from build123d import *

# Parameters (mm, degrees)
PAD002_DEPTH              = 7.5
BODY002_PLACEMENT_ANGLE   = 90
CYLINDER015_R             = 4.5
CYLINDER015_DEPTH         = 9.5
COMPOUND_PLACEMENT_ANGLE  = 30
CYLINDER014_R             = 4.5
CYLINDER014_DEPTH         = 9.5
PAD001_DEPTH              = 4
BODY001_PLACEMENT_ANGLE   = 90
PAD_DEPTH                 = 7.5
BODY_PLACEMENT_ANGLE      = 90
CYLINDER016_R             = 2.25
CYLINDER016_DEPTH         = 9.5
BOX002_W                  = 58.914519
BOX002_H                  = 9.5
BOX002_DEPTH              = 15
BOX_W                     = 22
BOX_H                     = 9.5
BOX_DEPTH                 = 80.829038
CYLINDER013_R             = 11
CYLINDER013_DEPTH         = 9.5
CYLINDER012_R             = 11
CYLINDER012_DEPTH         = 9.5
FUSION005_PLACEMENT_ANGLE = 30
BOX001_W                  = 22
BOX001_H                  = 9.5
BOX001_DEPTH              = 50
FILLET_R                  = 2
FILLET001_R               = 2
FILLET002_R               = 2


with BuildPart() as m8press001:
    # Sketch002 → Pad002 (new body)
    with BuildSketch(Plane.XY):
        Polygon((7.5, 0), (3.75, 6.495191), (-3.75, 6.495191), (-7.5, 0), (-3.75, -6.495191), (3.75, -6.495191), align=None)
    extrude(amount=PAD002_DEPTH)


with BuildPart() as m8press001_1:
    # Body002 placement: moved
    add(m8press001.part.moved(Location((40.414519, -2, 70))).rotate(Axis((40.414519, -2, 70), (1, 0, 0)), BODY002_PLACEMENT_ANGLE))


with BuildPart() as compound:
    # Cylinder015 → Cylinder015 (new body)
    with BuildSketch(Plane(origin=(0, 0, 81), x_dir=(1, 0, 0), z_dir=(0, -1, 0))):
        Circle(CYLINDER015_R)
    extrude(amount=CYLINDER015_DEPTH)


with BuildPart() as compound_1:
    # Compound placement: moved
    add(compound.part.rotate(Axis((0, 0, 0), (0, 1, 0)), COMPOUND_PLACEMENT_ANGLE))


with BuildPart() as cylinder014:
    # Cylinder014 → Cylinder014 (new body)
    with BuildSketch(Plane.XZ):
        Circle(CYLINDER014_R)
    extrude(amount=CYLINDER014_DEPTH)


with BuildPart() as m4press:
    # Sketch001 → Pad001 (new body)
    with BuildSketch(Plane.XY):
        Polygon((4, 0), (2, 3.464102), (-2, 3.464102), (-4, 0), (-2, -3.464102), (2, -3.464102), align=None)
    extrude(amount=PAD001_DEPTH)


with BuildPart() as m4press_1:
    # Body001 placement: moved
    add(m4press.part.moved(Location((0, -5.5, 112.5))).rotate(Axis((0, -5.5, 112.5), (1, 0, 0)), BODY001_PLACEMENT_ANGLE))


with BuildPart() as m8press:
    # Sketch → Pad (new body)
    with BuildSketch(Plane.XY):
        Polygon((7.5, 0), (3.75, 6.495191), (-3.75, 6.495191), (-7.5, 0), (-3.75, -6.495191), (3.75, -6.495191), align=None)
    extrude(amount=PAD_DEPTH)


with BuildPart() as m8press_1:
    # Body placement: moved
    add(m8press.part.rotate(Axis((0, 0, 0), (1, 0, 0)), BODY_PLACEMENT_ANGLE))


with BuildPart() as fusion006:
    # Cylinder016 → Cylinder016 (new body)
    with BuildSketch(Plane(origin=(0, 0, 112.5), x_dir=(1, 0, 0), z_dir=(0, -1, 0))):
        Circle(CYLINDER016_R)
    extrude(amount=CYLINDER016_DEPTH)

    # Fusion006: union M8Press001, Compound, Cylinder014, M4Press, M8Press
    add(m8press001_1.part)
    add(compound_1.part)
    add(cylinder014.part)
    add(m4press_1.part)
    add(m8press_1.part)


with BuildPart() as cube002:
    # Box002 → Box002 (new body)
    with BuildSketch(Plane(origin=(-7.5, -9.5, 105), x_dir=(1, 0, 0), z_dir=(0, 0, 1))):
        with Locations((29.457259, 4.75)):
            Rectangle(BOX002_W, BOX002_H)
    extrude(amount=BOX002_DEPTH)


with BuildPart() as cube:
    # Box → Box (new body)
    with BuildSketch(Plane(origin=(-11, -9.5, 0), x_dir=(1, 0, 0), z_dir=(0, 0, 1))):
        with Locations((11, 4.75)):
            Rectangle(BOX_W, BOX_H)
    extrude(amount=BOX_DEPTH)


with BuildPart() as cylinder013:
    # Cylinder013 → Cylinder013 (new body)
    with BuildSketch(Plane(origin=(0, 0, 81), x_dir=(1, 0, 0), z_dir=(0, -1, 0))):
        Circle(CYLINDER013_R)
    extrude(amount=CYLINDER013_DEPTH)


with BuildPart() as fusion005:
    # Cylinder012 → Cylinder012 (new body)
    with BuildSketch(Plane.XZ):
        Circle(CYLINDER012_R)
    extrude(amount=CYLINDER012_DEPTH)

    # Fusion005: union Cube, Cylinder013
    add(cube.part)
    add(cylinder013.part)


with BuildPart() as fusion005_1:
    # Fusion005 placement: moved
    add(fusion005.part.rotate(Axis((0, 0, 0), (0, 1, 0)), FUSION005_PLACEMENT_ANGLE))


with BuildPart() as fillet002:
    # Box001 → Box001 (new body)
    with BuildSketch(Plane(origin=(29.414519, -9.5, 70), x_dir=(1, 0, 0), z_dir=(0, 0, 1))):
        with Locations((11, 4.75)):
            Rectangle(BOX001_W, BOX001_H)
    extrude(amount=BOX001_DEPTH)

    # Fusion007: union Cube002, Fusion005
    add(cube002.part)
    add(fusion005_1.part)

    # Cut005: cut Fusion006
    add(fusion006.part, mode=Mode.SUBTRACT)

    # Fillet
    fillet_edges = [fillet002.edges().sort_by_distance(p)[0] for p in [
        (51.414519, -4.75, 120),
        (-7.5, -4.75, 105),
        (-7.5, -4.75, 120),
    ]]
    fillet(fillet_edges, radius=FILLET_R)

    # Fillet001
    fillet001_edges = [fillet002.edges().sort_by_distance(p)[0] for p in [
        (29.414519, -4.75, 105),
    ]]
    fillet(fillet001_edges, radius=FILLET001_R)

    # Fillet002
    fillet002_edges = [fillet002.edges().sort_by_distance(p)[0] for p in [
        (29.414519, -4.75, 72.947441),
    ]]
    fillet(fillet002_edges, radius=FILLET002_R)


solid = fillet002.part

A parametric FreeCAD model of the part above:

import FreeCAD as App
import Part
import Sketcher

V = App.Vector
Q = App.Units.Quantity


def edges_at(feature, points):
    """Names of the edges that pass closest to the given points."""
    edges = feature.Shape.Edges
    near = lambda p: min(range(len(edges)), key=lambda i: edges[i].distToShape(Part.Vertex(*p))[0])
    return sorted({f"Edge{near(p) + 1}" for p in points})


def add_polygon(sketch, points):
    """Adds a closed chain of lines whose ends are joined by coincident constraints."""
    first, n = sketch.GeometryCount, len(points)
    for a, b in zip(points, points[1:] + points[:1]):
        sketch.addGeometry(Part.LineSegment(App.Vector(*a, 0), App.Vector(*b, 0)), False)
    for i in range(n):
        sketch.addConstraint(Sketcher.Constraint("Coincident", first + i, 2, first + (i + 1) % n, 1))

doc = App.newDocument("Part")
params = doc.addObject("Spreadsheet::Sheet", "Params")
for row, (alias, value) in enumerate([
    ("sketch1_width", "7.5 mm"),
    ("pad1_length", "7.5 mm"),
    ("sketch2_diameter", "9 mm"),
    ("pad2_length", "9.5 mm"),
    ("sketch3_diameter", "9 mm"),
    ("pad3_length", "9.5 mm"),
    ("sketch4_width", "4 mm"),
    ("sketch4_length", "4 mm"),
    ("pad4_length", "4 mm"),
    ("sketch5_width", "7.5 mm"),
    ("pad5_length", "7.5 mm"),
    ("sketch6_diameter", "4.5 mm"),
    ("pad6_length", "9.5 mm"),
    ("sketch7_height", "9.5 mm"),
    ("pad7_length", "15 mm"),
    ("sketch8_width", "22 mm"),
    ("sketch8_height", "9.5 mm"),
    ("pad8_length", "80.829038 mm"),
    ("sketch9_diameter", "22 mm"),
    ("pad9_length", "9.5 mm"),
    ("sketch10_diameter", "22 mm"),
    ("pad10_length", "9.5 mm"),
    ("sketch11_width", "22 mm"),
    ("sketch11_height", "9.5 mm"),
    ("pad11_length", "50 mm"),
    ("fillet_radius", "2 mm"),
    ("fillet2_radius", "2 mm"),
    ("fillet3_radius", "2 mm"),
], start=1):
    params.set(f"A{row}", alias)
    params.set(f"B{row}", "=" + value)
    params.setAlias(f"B{row}", alias)

body = doc.addObject("PartDesign::Body", "Body")

sketch1 = body.newObject("Sketcher::SketchObject", "Sketch")
sketch1.AttachmentSupport = (doc.getObject("XY_Plane"), [""])
sketch1.MapMode = "FlatFace"
add_polygon(sketch1, [(8, 0), (4, 6), (-4, 6), (-8, 0), (-4, -6), (4, -6)])
sketch1.addConstraint([
    Sketcher.Constraint("Horizontal", 1),
    Sketcher.Constraint("Horizontal", 4),
    Sketcher.Constraint("Symmetric", 0, 2, 3, 2, -1, 1),
    Sketcher.Constraint("Symmetric", 2, 2, 5, 2, -1, 1),
    Sketcher.Constraint("PointOnObject", 2, 2, -1),
    Sketcher.Constraint("Parallel", 2, 5),
    Sketcher.Constraint("Vertical", 1, 2, 3, 2),
    Sketcher.Constraint("Angle", 0, Q("119.999998 deg")),
    Sketcher.Constraint("DistanceX", 1, 2, 1, 1, Q("7.5 mm")),
    Sketcher.Constraint("DistanceX", 2, 2, 5, 2, Q("15 mm")),
])
sketch1.setExpression("Constraints[14]", "Params.sketch1_width")
pad1 = body.newObject("PartDesign::Pad", "Pad")
pad1.Profile = sketch1
pad1.setExpression("Length", "Params.pad1_length")
body2 = doc.addObject("PartDesign::Body", "Body001")
doc.recompute()

body.Placement = App.Placement(V(40.414519, -2, 70), App.Rotation(V(1, 0, 0), 90))
boolean = body2.newObject("PartDesign::Boolean", "Boolean")
boolean.Type = "Fuse"
boolean.addObjects([body])
body3 = doc.addObject("PartDesign::Body", "Body002")

sketch2 = body3.newObject("Sketcher::SketchObject", "Sketch001")
sketch2.AttachmentSupport = (doc.getObject("XZ_Plane002"), [""])
sketch2.MapMode = "FlatFace"
sketch2.addGeometry(Part.Circle(V(0, 81, 0), V(0, 0, 1), 4.5), False)
sketch2.addConstraint([
    Sketcher.Constraint("PointOnObject", 0, 3, -2),
    Sketcher.Constraint("Diameter", 0, Q("9 mm")),
    Sketcher.Constraint("DistanceY", -1, 1, 0, 3, Q("81 mm")),
])
sketch2.setExpression("Constraints[1]", "Params.sketch2_diameter")
pad2 = body3.newObject("PartDesign::Pad", "Pad001")
pad2.Profile = sketch2
pad2.setExpression("Length", "Params.pad2_length")
body4 = doc.addObject("PartDesign::Body", "Body003")
doc.recompute()

body3.Placement = App.Placement(V(0, 0, 0), App.Rotation(V(0, 1, 0), 30))
boolean2 = body4.newObject("PartDesign::Boolean", "Boolean001")
boolean2.Type = "Fuse"
boolean2.addObjects([body3])
body5 = doc.addObject("PartDesign::Body", "Body004")

sketch3 = body5.newObject("Sketcher::SketchObject", "Sketch002")
sketch3.AttachmentSupport = (doc.getObject("XZ_Plane004"), [""])
sketch3.MapMode = "FlatFace"
sketch3.addGeometry(Part.Circle(V(0, 0, 0), V(0, 0, 1), 4.5), False)
sketch3.addConstraint([
    Sketcher.Constraint("Coincident", 0, 3, -1, 1),
    Sketcher.Constraint("Diameter", 0, Q("9 mm")),
])
sketch3.setExpression("Constraints[1]", "Params.sketch3_diameter")
pad3 = body5.newObject("PartDesign::Pad", "Pad002")
pad3.Profile = sketch3
pad3.setExpression("Length", "Params.pad3_length")
body6 = doc.addObject("PartDesign::Body", "Body005")

sketch4 = body6.newObject("Sketcher::SketchObject", "Sketch003")
sketch4.AttachmentSupport = (doc.getObject("XY_Plane005"), [""])
sketch4.MapMode = "FlatFace"
add_polygon(sketch4, [(4, 0), (2, 3.5), (-2, 3.5), (-4, 0), (-2, -3.5), (2, -3.5)])
sketch4.addConstraint([
    Sketcher.Constraint("Horizontal", 1),
    Sketcher.Constraint("Horizontal", 4),
    Sketcher.Constraint("Symmetric", 0, 2, 3, 2, -1, 1),
    Sketcher.Constraint("Symmetric", 2, 2, 5, 2, -1, 1),
    Sketcher.Constraint("PointOnObject", 2, 2, -1),
    Sketcher.Constraint("Parallel", 2, 5),
    Sketcher.Constraint("Vertical", 1, 2, 3, 2),
    Sketcher.Constraint("DistanceX", 1, 2, 1, 1, Q("4 mm")),
    Sketcher.Constraint("Angle", 0, Q("119.999997 deg")),
    Sketcher.Constraint("Distance", 0, Q("4 mm")),
])
sketch4.setExpression("Constraints[13]", "Params.sketch4_width")
sketch4.setExpression("Constraints[15]", "Params.sketch4_length")
pad4 = body6.newObject("PartDesign::Pad", "Pad003")
pad4.Profile = sketch4
pad4.setExpression("Length", "Params.pad4_length")
body7 = doc.addObject("PartDesign::Body", "Body006")
doc.recompute()

body6.Placement = App.Placement(V(0, -5.5, 112.5), App.Rotation(V(1, 0, 0), 90))
boolean3 = body7.newObject("PartDesign::Boolean", "Boolean002")
boolean3.Type = "Fuse"
boolean3.addObjects([body6])
body8 = doc.addObject("PartDesign::Body", "Body007")

sketch5 = body8.newObject("Sketcher::SketchObject", "Sketch004")
sketch5.AttachmentSupport = (doc.getObject("XY_Plane007"), [""])
sketch5.MapMode = "FlatFace"
add_polygon(sketch5, [(8, 0), (4, 6), (-4, 6), (-8, 0), (-4, -6), (4, -6)])
sketch5.addConstraint([
    Sketcher.Constraint("Horizontal", 1),
    Sketcher.Constraint("Horizontal", 4),
    Sketcher.Constraint("Symmetric", 0, 2, 3, 2, -1, 1),
    Sketcher.Constraint("Symmetric", 2, 2, 5, 2, -1, 1),
    Sketcher.Constraint("PointOnObject", 2, 2, -1),
    Sketcher.Constraint("Parallel", 2, 5),
    Sketcher.Constraint("Vertical", 1, 2, 3, 2),
    Sketcher.Constraint("Angle", 0, Q("119.999998 deg")),
    Sketcher.Constraint("DistanceX", 1, 2, 1, 1, Q("7.5 mm")),
    Sketcher.Constraint("DistanceX", 2, 2, 5, 2, Q("15 mm")),
])
sketch5.setExpression("Constraints[14]", "Params.sketch5_width")
pad5 = body8.newObject("PartDesign::Pad", "Pad004")
pad5.Profile = sketch5
pad5.setExpression("Length", "Params.pad5_length")
body9 = doc.addObject("PartDesign::Body", "Body008")
doc.recompute()

body8.Placement = App.Placement(V(0, 0, 0), App.Rotation(V(1, 0, 0), 90))
boolean4 = body9.newObject("PartDesign::Boolean", "Boolean003")
boolean4.Type = "Fuse"
boolean4.addObjects([body8])
body10 = doc.addObject("PartDesign::Body", "Body009")
body10.AllowCompound = True

sketch6 = body10.newObject("Sketcher::SketchObject", "Sketch005")
sketch6.AttachmentSupport = (doc.getObject("XZ_Plane009"), [""])
sketch6.MapMode = "FlatFace"
sketch6.addGeometry(Part.Circle(V(0, 112.5, 0), V(0, 0, 1), 2.2), False)
sketch6.addConstraint([
    Sketcher.Constraint("PointOnObject", 0, 3, -2),
    Sketcher.Constraint("Diameter", 0, Q("4.5 mm")),
    Sketcher.Constraint("DistanceY", -1, 1, 0, 3, Q("112.5 mm")),
])
sketch6.setExpression("Constraints[1]", "Params.sketch6_diameter")
pad6 = body10.newObject("PartDesign::Pad", "Pad005")
pad6.Profile = sketch6
pad6.setExpression("Length", "Params.pad6_length")
doc.recompute()

boolean5 = body10.newObject("PartDesign::Boolean", "Boolean004")
boolean5.Type = "Fuse"
boolean5.addObjects([body2])
doc.recompute()

boolean6 = body10.newObject("PartDesign::Boolean", "Boolean005")
boolean6.Type = "Fuse"
boolean6.addObjects([body4])
doc.recompute()

boolean7 = body10.newObject("PartDesign::Boolean", "Boolean006")
boolean7.Type = "Fuse"
boolean7.addObjects([body5])
doc.recompute()

boolean8 = body10.newObject("PartDesign::Boolean", "Boolean007")
boolean8.Type = "Fuse"
boolean8.addObjects([body7])
doc.recompute()

boolean9 = body10.newObject("PartDesign::Boolean", "Boolean008")
boolean9.Type = "Fuse"
boolean9.addObjects([body9])
body11 = doc.addObject("PartDesign::Body", "Body010")

sketch7 = body11.newObject("Sketcher::SketchObject", "Sketch006")
sketch7.AttachmentSupport = (doc.getObject("XY_Plane010"), [""])
sketch7.MapMode = "FlatFace"
sketch7.AttachmentOffset = App.Placement(V(0, 0, 105), App.Rotation())
add_polygon(sketch7, [(-8, 0), (-8, -10), (51, -10), (51, 0)])
sketch7.addConstraint([
    Sketcher.Constraint("Vertical", 0),
    Sketcher.Constraint("Horizontal", 1),
    Sketcher.Constraint("Vertical", 2),
    Sketcher.Constraint("Horizontal", 3),
    Sketcher.Constraint("PointOnObject", 2, 2, -1),
    Sketcher.Constraint("DistanceY", 0, 2, 0, 1, Q("9.5 mm")),
    Sketcher.Constraint("DistanceX", 0, 2, -1, 1, Q("7.5 mm")),
    Sketcher.Constraint("DistanceX", 1, 1, 1, 2, Q("58.914519 mm")),
])
sketch7.setExpression("Constraints[9]", "Params.sketch7_height")
pad7 = body11.newObject("PartDesign::Pad", "Pad006")
pad7.Profile = sketch7
pad7.setExpression("Length", "Params.pad7_length")
body12 = doc.addObject("PartDesign::Body", "Body011")

sketch8 = body12.newObject("Sketcher::SketchObject", "Sketch007")
sketch8.AttachmentSupport = (doc.getObject("XY_Plane011"), [""])
sketch8.MapMode = "FlatFace"
add_polygon(sketch8, [(-11, 0), (-11, -10), (11, -10), (11, 0)])
sketch8.addConstraint([
    Sketcher.Constraint("Vertical", 0),
    Sketcher.Constraint("Horizontal", 1),
    Sketcher.Constraint("Vertical", 2),
    Sketcher.Constraint("Horizontal", 3),
    Sketcher.Constraint("Symmetric", 2, 2, 3, 2, -1, 1),
    Sketcher.Constraint("DistanceX", 1, 1, 1, 2, Q("22 mm")),
    Sketcher.Constraint("DistanceY", 0, 2, 0, 1, Q("9.5 mm")),
])
sketch8.setExpression("Constraints[9]", "Params.sketch8_width")
sketch8.setExpression("Constraints[10]", "Params.sketch8_height")
pad8 = body12.newObject("PartDesign::Pad", "Pad007")
pad8.Profile = sketch8
pad8.setExpression("Length", "Params.pad8_length")
body13 = doc.addObject("PartDesign::Body", "Body012")

sketch9 = body13.newObject("Sketcher::SketchObject", "Sketch008")
sketch9.AttachmentSupport = (doc.getObject("XZ_Plane012"), [""])
sketch9.MapMode = "FlatFace"
sketch9.addGeometry(Part.Circle(V(0, 81, 0), V(0, 0, 1), 11), False)
sketch9.addConstraint([
    Sketcher.Constraint("PointOnObject", 0, 3, -2),
    Sketcher.Constraint("Diameter", 0, Q("22 mm")),
    Sketcher.Constraint("DistanceY", -1, 1, 0, 3, Q("81 mm")),
])
sketch9.setExpression("Constraints[1]", "Params.sketch9_diameter")
pad9 = body13.newObject("PartDesign::Pad", "Pad008")
pad9.Profile = sketch9
pad9.setExpression("Length", "Params.pad9_length")
body14 = doc.addObject("PartDesign::Body", "Body013")

sketch10 = body14.newObject("Sketcher::SketchObject", "Sketch009")
sketch10.AttachmentSupport = (doc.getObject("XZ_Plane013"), [""])
sketch10.MapMode = "FlatFace"
sketch10.addGeometry(Part.Circle(V(0, 0, 0), V(0, 0, 1), 11), False)
sketch10.addConstraint([
    Sketcher.Constraint("Coincident", 0, 3, -1, 1),
    Sketcher.Constraint("Diameter", 0, Q("22 mm")),
])
sketch10.setExpression("Constraints[1]", "Params.sketch10_diameter")
pad10 = body14.newObject("PartDesign::Pad", "Pad009")
pad10.Profile = sketch10
pad10.setExpression("Length", "Params.pad10_length")
doc.recompute()

boolean10 = body14.newObject("PartDesign::Boolean", "Boolean009")
boolean10.Type = "Fuse"
boolean10.addObjects([body12])
doc.recompute()

boolean11 = body14.newObject("PartDesign::Boolean", "Boolean010")
boolean11.Type = "Fuse"
boolean11.addObjects([body13])
body15 = doc.addObject("PartDesign::Body", "Body014")
doc.recompute()

body14.Placement = App.Placement(V(0, 0, 0), App.Rotation(V(0, 1, 0), 30))
boolean12 = body15.newObject("PartDesign::Boolean", "Boolean011")
boolean12.Type = "Fuse"
boolean12.addObjects([body14])
body16 = doc.addObject("PartDesign::Body", "Body015")

sketch11 = body16.newObject("Sketcher::SketchObject", "Sketch010")
sketch11.AttachmentSupport = (doc.getObject("XY_Plane015"), [""])
sketch11.MapMode = "FlatFace"
sketch11.AttachmentOffset = App.Placement(V(0, 0, 70), App.Rotation())
add_polygon(sketch11, [(29, 0), (29, -10), (51, -10), (51, 0)])
sketch11.addConstraint([
    Sketcher.Constraint("Vertical", 0),
    Sketcher.Constraint("Horizontal", 1),
    Sketcher.Constraint("Vertical", 2),
    Sketcher.Constraint("Horizontal", 3),
    Sketcher.Constraint("PointOnObject", 2, 2, -1),
    Sketcher.Constraint("DistanceX", 1, 1, 1, 2, Q("22 mm")),
    Sketcher.Constraint("DistanceY", 0, 2, 0, 1, Q("9.5 mm")),
    Sketcher.Constraint("DistanceX", -1, 1, 0, 2, Q("29.414519 mm")),
])
sketch11.setExpression("Constraints[9]", "Params.sketch11_width")
sketch11.setExpression("Constraints[10]", "Params.sketch11_height")
pad11 = body16.newObject("PartDesign::Pad", "Pad010")
pad11.Profile = sketch11
pad11.setExpression("Length", "Params.pad11_length")
doc.recompute()

boolean13 = body16.newObject("PartDesign::Boolean", "Boolean012")
boolean13.Type = "Fuse"
boolean13.addObjects([body11])
doc.recompute()

boolean14 = body16.newObject("PartDesign::Boolean", "Boolean013")
boolean14.Type = "Fuse"
boolean14.addObjects([body15])
doc.recompute()

boolean15 = body16.newObject("PartDesign::Boolean", "Boolean014")
boolean15.Type = "Cut"
boolean15.addObjects([body10])
doc.recompute()

fillet = body16.newObject("PartDesign::Fillet", "Fillet")
fillet.Base = (boolean15, edges_at(boolean15, [(51.415, -4.75, 120), (-7.5, -4.75, 105), (-7.5, -4.75, 120)]))
fillet.setExpression("Radius", "Params.fillet_radius")
doc.recompute()

fillet2 = body16.newObject("PartDesign::Fillet", "Fillet001")
fillet2.Base = (fillet, edges_at(fillet, [(29.415, -4.75, 105)]))
fillet2.setExpression("Radius", "Params.fillet2_radius")
doc.recompute()

fillet3 = body16.newObject("PartDesign::Fillet", "Fillet002")
fillet3.Base = (fillet2, edges_at(fillet2, [(29.415, -4.75, 72.947)]))
fillet3.setExpression("Radius", "Params.fillet3_radius")

doc.recompute()
